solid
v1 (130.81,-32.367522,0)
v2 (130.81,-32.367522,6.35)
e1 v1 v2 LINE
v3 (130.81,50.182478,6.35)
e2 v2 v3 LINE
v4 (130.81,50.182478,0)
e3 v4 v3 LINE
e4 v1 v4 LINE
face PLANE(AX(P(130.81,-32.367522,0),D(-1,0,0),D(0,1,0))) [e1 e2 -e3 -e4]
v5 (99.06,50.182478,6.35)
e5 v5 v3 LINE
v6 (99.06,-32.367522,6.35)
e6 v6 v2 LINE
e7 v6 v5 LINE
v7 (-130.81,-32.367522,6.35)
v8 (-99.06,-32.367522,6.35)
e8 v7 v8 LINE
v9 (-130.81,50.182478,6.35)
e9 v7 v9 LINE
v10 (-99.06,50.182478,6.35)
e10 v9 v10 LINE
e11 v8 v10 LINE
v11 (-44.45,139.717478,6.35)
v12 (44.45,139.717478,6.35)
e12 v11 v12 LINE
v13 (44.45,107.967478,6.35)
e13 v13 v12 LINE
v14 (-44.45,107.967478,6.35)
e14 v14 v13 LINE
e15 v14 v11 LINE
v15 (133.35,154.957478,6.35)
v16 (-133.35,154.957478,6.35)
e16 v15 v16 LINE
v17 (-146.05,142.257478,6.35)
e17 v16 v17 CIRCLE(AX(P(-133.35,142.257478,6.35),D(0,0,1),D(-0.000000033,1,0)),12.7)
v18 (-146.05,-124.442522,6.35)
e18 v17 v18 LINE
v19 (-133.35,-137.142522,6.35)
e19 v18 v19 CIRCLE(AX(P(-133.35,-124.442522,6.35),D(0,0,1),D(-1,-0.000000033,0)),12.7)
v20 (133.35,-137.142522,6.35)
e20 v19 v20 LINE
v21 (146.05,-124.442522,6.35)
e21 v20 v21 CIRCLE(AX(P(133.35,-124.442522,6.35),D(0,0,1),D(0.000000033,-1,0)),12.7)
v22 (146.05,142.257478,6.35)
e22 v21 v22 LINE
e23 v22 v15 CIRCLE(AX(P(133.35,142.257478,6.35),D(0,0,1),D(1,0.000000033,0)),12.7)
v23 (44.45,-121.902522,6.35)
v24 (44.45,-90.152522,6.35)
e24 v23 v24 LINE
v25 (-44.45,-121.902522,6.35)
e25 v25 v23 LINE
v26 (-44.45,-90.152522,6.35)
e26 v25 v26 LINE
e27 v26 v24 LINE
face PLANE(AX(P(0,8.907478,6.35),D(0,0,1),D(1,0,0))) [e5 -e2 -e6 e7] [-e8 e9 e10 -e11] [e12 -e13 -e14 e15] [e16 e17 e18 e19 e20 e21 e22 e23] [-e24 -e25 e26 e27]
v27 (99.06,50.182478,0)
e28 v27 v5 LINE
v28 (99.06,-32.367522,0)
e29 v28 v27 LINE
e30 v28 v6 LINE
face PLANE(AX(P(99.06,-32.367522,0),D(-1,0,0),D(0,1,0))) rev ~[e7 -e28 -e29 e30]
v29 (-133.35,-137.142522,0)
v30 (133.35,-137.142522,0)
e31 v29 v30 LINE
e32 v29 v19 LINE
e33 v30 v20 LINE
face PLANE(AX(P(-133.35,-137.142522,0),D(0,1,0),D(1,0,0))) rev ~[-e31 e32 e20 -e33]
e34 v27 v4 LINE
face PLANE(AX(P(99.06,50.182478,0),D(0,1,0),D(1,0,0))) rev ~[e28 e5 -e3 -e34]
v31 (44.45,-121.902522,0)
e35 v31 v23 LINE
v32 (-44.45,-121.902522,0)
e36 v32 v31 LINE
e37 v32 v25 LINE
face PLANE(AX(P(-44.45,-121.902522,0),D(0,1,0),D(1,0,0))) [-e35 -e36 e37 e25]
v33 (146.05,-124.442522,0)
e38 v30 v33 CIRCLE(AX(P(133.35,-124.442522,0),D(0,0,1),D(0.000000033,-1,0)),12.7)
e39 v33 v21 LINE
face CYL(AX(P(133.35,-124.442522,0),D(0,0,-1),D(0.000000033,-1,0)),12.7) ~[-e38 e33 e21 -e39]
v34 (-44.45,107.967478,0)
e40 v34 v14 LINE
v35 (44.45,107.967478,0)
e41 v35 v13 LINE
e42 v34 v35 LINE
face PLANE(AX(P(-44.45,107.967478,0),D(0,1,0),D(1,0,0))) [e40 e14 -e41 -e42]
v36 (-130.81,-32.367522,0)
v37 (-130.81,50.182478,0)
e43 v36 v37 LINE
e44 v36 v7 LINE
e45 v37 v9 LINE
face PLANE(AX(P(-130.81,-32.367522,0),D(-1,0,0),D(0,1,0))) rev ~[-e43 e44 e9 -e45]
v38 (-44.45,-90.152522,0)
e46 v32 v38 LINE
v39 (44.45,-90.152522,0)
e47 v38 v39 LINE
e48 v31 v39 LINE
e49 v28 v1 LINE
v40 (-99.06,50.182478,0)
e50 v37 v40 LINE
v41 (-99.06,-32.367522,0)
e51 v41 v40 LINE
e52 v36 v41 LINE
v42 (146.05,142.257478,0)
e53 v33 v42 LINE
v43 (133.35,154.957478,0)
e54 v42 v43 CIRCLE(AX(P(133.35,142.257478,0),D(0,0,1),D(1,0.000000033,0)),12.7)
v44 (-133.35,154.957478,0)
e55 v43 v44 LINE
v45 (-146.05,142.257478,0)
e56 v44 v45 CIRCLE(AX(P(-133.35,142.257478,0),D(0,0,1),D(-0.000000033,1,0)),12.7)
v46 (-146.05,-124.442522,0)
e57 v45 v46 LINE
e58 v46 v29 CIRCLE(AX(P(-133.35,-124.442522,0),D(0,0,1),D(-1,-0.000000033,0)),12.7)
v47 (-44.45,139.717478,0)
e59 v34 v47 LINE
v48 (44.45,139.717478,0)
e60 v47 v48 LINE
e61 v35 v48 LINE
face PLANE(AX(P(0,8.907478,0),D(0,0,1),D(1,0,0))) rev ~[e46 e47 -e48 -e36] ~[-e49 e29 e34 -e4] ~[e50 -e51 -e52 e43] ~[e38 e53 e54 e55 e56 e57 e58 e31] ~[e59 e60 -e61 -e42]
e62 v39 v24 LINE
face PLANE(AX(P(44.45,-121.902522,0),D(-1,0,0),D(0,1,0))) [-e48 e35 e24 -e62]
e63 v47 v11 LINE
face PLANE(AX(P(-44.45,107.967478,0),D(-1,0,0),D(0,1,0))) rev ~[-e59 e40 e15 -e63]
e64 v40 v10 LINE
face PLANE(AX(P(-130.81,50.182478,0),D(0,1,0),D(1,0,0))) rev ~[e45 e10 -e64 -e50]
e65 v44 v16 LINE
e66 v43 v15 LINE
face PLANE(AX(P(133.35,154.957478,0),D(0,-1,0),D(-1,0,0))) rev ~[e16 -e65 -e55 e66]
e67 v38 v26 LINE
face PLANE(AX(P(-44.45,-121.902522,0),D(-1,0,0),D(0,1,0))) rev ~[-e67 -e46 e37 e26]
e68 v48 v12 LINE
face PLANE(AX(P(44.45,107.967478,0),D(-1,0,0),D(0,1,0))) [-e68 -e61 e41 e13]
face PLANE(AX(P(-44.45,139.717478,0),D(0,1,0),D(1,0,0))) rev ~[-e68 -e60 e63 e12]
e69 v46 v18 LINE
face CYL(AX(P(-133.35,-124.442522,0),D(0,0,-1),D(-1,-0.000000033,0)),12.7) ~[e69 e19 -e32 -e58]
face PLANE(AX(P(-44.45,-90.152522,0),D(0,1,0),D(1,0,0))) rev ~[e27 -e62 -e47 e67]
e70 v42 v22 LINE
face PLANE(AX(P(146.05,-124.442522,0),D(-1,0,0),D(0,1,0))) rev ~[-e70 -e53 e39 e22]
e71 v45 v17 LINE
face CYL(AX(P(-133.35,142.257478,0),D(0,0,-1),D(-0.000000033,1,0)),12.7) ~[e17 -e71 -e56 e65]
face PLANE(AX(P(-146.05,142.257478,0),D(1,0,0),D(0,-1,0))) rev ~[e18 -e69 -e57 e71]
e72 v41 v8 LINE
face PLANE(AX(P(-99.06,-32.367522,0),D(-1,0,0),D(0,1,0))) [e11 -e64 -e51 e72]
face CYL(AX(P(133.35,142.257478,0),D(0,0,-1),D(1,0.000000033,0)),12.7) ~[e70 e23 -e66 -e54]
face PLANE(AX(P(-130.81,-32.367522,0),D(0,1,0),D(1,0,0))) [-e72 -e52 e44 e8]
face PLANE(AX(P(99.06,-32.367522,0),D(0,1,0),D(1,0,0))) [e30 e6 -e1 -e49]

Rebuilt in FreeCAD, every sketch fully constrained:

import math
import FreeCAD as App
import Part
import Sketcher
Q = App.Units.Quantity

doc = App.newDocument("Part")
body = doc.addObject("PartDesign::Body", "Body")

sketch1 = body.newObject("Sketcher::SketchObject", "Sketch")
sketch1.AttachmentSupport = (doc.getObject("XY_Plane"), [""])
sketch1.MapMode = "FlatFace"
sketch1.addGeometry(Part.ArcOfCircle(Part.Circle(App.Vector(-133.35, -124.442522, 0), App.Vector(0, 0, 1), 12.7), math.radians(-179.999998), math.radians(-90.000002)), False)
sketch1.addGeometry(Part.LineSegment(App.Vector(-133.35, -137.142522, 0), App.Vector(133.35, -137.142522, 0)), False)
sketch1.addGeometry(Part.ArcOfCircle(Part.Circle(App.Vector(133.35, -124.442522, 0), App.Vector(0, 0, 1), 12.7), math.radians(-89.999998), math.radians(-0.000002)), False)
sketch1.addGeometry(Part.LineSegment(App.Vector(146.05, -124.442522, 0), App.Vector(146.05, 142.257478, 0)), False)
sketch1.addGeometry(Part.ArcOfCircle(Part.Circle(App.Vector(133.35, 142.257478, 0), App.Vector(0, 0, 1), 12.7), math.radians(0.000002), math.radians(89.999998)), False)
sketch1.addGeometry(Part.LineSegment(App.Vector(133.35, 154.957478, 0), App.Vector(-133.35, 154.957478, 0)), False)
sketch1.addGeometry(Part.ArcOfCircle(Part.Circle(App.Vector(-133.35, 142.257478, 0), App.Vector(0, 0, 1), 12.7), math.radians(90.000002), math.radians(179.999998)), False)
sketch1.addGeometry(Part.LineSegment(App.Vector(-146.05, 142.257478, 0), App.Vector(-146.05, -124.442522, 0)), False)
sketch1.addGeometry(Part.LineSegment(App.Vector(44.45, -121.902522, 0), App.Vector(-44.45, -121.902522, 0)), False)
sketch1.addGeometry(Part.LineSegment(App.Vector(-44.45, -121.902522, 0), App.Vector(-44.45, -90.152522, 0)), False)
sketch1.addGeometry(Part.LineSegment(App.Vector(-44.45, -90.152522, 0), App.Vector(44.45, -90.152522, 0)), False)
sketch1.addGeometry(Part.LineSegment(App.Vector(44.45, -90.152522, 0), App.Vector(44.45, -121.902522, 0)), False)
sketch1.addGeometry(Part.LineSegment(App.Vector(-99.06, -32.367522, 0), App.Vector(-130.81, -32.367522, 0)), False)
sketch1.addGeometry(Part.LineSegment(App.Vector(-130.81, -32.367522, 0), App.Vector(-130.81, 50.182478, 0)), False)
sketch1.addGeometry(Part.LineSegment(App.Vector(-130.81, 50.182478, 0), App.Vector(-99.06, 50.182478, 0)), False)
sketch1.addGeometry(Part.LineSegment(App.Vector(-99.06, 50.182478, 0), App.Vector(-99.06, -32.367522, 0)), False)
sketch1.addGeometry(Part.LineSegment(App.Vector(130.81, -32.367522, 0), App.Vector(99.06, -32.367522, 0)), False)
sketch1.addGeometry(Part.LineSegment(App.Vector(99.06, -32.367522, 0), App.Vector(99.06, 50.182478, 0)), False)
sketch1.addGeometry(Part.LineSegment(App.Vector(99.06, 50.182478, 0), App.Vector(130.81, 50.182478, 0)), False)
sketch1.addGeometry(Part.LineSegment(App.Vector(130.81, 50.182478, 0), App.Vector(130.81, -32.367522, 0)), False)
sketch1.addGeometry(Part.LineSegment(App.Vector(44.45, 107.967478, 0), App.Vector(-44.45, 107.967478, 0)), False)
sketch1.addGeometry(Part.LineSegment(App.Vector(-44.45, 107.967478, 0), App.Vector(-44.45, 139.717478, 0)), False)
sketch1.addGeometry(Part.LineSegment(App.Vector(-44.45, 139.717478, 0), App.Vector(44.45, 139.717478, 0)), False)
sketch1.addGeometry(Part.LineSegment(App.Vector(44.45, 139.717478, 0), App.Vector(44.45, 107.967478, 0)), False)
sketch1.addConstraint(Sketcher.Constraint("Tangent", 0, 2, 1, 1))
sketch1.addConstraint(Sketcher.Constraint("Tangent", 1, 2, 2, 1))
sketch1.addConstraint(Sketcher.Constraint("Tangent", 2, 2, 3, 1))
sketch1.addConstraint(Sketcher.Constraint("Tangent", 3, 2, 4, 1))
sketch1.addConstraint(Sketcher.Constraint("Tangent", 4, 2, 5, 1))
sketch1.addConstraint(Sketcher.Constraint("Tangent", 5, 2, 6, 1))
sketch1.addConstraint(Sketcher.Constraint("Tangent", 6, 2, 7, 1))
sketch1.addConstraint(Sketcher.Constraint("Tangent", 7, 2, 0, 1))
sketch1.addConstraint(Sketcher.Constraint("Coincident", 8, 2, 9, 1))
sketch1.addConstraint(Sketcher.Constraint("Coincident", 9, 2, 10, 1))
sketch1.addConstraint(Sketcher.Constraint("Coincident", 10, 2, 11, 1))
sketch1.addConstraint(Sketcher.Constraint("Coincident", 11, 2, 8, 1))
sketch1.addConstraint(Sketcher.Constraint("Coincident", 12, 2, 13, 1))
sketch1.addConstraint(Sketcher.Constraint("Coincident", 13, 2, 14, 1))
sketch1.addConstraint(Sketcher.Constraint("Coincident", 14, 2, 15, 1))
sketch1.addConstraint(Sketcher.Constraint("Coincident", 15, 2, 12, 1))
sketch1.addConstraint(Sketcher.Constraint("Coincident", 16, 2, 17, 1))
sketch1.addConstraint(Sketcher.Constraint("Coincident", 17, 2, 18, 1))
sketch1.addConstraint(Sketcher.Constraint("Coincident", 18, 2, 19, 1))
sketch1.addConstraint(Sketcher.Constraint("Coincident", 19, 2, 16, 1))
sketch1.addConstraint(Sketcher.Constraint("Coincident", 20, 2, 21, 1))
sketch1.addConstraint(Sketcher.Constraint("Coincident", 21, 2, 22, 1))
sketch1.addConstraint(Sketcher.Constraint("Coincident", 22, 2, 23, 1))
sketch1.addConstraint(Sketcher.Constraint("Coincident", 23, 2, 20, 1))
sketch1.addConstraint(Sketcher.Constraint("Horizontal", 1))
sketch1.addConstraint(Sketcher.Constraint("Vertical", 3))
sketch1.addConstraint(Sketcher.Constraint("Horizontal", 5))
sketch1.addConstraint(Sketcher.Constraint("Vertical", 7))
sketch1.addConstraint(Sketcher.Constraint("Horizontal", 8))
sketch1.addConstraint(Sketcher.Constraint("Vertical", 9))
sketch1.addConstraint(Sketcher.Constraint("Horizontal", 10))
sketch1.addConstraint(Sketcher.Constraint("Vertical", 11))
sketch1.addConstraint(Sketcher.Constraint("Horizontal", 12))
sketch1.addConstraint(Sketcher.Constraint("Vertical", 13))
sketch1.addConstraint(Sketcher.Constraint("Horizontal", 14))
sketch1.addConstraint(Sketcher.Constraint("Vertical", 15))
sketch1.addConstraint(Sketcher.Constraint("Horizontal", 16))
sketch1.addConstraint(Sketcher.Constraint("Vertical", 17))
sketch1.addConstraint(Sketcher.Constraint("Horizontal", 18))
sketch1.addConstraint(Sketcher.Constraint("Vertical", 19))
sketch1.addConstraint(Sketcher.Constraint("Horizontal", 20))
sketch1.addConstraint(Sketcher.Constraint("Vertical", 21))
sketch1.addConstraint(Sketcher.Constraint("Horizontal", 22))
sketch1.addConstraint(Sketcher.Constraint("Vertical", 23))
sketch1.addConstraint(Sketcher.Constraint("Equal", 0, 2))
sketch1.addConstraint(Sketcher.Constraint("Equal", 2, 4))
sketch1.addConstraint(Sketcher.Constraint("Equal", 4, 6))
sketch1.addConstraint(Sketcher.Constraint("Symmetric", 15, 2, 16, 2, -2))
sketch1.addConstraint(Sketcher.Constraint("Symmetric", 13, 2, 18, 2, -2))
sketch1.addConstraint(Sketcher.Constraint("Vertical", 9, 2, 20, 2))
sketch1.addConstraint(Sketcher.Constraint("Vertical", 11, 2, 22, 2))
sketch1.addConstraint(Sketcher.Constraint("Equal", 5, 3))
sketch1.addConstraint(Sketcher.Constraint("Equal", 18, 9))
sketch1.addConstraint(Sketcher.Constraint("Equal", 11, 21))
sketch1.addConstraint(Sketcher.Constraint("Radius", 0, Q("0.5 in")))
sketch1.addConstraint(Sketcher.Constraint("DistanceX", 1, 1, 1, 2, Q("10.5 in")))
sketch1.addConstraint(Sketcher.Constraint("DistanceX", 8, 2, 8, 1, Q("3.5 in")))
sketch1.addConstraint(Sketcher.Constraint("DistanceX", 7, 2, 8, 2, Q("4 in")))
sketch1.addConstraint(Sketcher.Constraint("DistanceX", 12, 2, 12, 1, Q("1.25 in")))
sketch1.addConstraint(Sketcher.Constraint("DistanceY", 13, 1, 13, 2, Q("3.25 in")))
sketch1.addConstraint(Sketcher.Constraint("DistanceX", 14, 2, -1, 1, Q("3.9 in")))
sketch1.addConstraint(Sketcher.Constraint("DistanceY", 0, 3, 8, 2, Q("0.1 in")))
sketch1.addConstraint(Sketcher.Constraint("DistanceX", 0, 3, 12, 2, Q("0.1 in")))
sketch1.addConstraint(Sketcher.Constraint("DistanceY", 21, 2, 6, 3, Q("0.1 in")))
sketch1.addConstraint(Sketcher.Constraint("DistanceY", 0, 3, 12, 2, Q("3.625 in")))
sketch1.addConstraint(Sketcher.Constraint("DistanceY", 0, 3, -1, 1, 124.442522))
pad1 = body.newObject("PartDesign::Pad", "Pad")
pad1.Profile = sketch1
pad1.Length = Q("0.25 in")

doc.recompute()
